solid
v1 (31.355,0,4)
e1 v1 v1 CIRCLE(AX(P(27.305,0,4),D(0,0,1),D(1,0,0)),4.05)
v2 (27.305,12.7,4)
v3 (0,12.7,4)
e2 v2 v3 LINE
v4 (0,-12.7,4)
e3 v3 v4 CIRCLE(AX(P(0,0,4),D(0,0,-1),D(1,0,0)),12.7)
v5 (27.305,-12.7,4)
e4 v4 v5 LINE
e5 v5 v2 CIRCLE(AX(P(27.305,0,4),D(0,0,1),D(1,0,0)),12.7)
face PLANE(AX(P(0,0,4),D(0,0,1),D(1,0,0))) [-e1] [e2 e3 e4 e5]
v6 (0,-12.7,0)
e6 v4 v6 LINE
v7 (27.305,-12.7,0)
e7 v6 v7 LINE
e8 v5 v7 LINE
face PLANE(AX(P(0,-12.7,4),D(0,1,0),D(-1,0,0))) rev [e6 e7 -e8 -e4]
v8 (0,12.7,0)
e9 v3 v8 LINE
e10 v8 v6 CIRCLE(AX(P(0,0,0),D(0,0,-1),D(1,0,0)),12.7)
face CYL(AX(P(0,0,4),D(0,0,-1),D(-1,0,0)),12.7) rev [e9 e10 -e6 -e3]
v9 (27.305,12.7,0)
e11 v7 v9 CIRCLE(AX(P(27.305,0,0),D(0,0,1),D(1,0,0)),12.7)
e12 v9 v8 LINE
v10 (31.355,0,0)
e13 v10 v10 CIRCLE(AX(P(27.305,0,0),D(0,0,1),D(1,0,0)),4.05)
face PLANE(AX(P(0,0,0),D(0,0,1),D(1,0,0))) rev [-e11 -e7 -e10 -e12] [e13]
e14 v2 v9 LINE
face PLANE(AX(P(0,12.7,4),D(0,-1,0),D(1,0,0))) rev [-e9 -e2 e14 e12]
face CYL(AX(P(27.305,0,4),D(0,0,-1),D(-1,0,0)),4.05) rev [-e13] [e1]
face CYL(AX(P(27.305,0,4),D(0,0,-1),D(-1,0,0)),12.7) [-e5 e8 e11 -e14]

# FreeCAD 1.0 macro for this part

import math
import FreeCAD as App
import Part
import Sketcher

V = App.Vector
Q = App.Units.Quantity

doc = App.newDocument("Part")
params = doc.addObject("Spreadsheet::Sheet", "Params")
for row, (alias, value) in enumerate([
    ("sketch1_diameter", "8.1 mm"),
    ("sketch1_radius", "12.7 mm"),
    ("pad1_length", "4 mm"),
], start=1):
    params.set(f"A{row}", alias)
    params.set(f"B{row}", "=" + value)
    params.setAlias(f"B{row}", alias)

body = doc.addObject("PartDesign::Body", "Body")

# Sketch on XY plane
sketch1 = body.newObject("Sketcher::SketchObject", "Sketch")
sketch1.AttachmentSupport = (doc.getObject("XY_Plane"), [""])
sketch1.MapMode = "FlatFace"
sketch1.addGeometry([
    Part.LineSegment(V(27.305, 12.7, 0), V(0, 12.7, 0)),  # 0
    Part.ArcOfCircle(Part.Circle(V(0, 0, 0), V(0, 0, 1), 12.7), math.radians(-90), math.radians(90)),  # 1
    Part.LineSegment(V(0, -12.7, 0), V(27.305, -12.7, 0)),  # 2
    Part.ArcOfCircle(Part.Circle(V(27.305, 0, 0), V(0, 0, 1), 12.7), math.radians(-90), math.radians(90)),  # 3
    Part.Circle(V(27.305, 0, 0), V(0, 0, 1), 4.05),  # 4
], False)
sketch1.addConstraint([
    Sketcher.Constraint("Tangent", 0, 2, 1, 2),
    Sketcher.Constraint("Tangent", 1, 1, 2, 1),
    Sketcher.Constraint("Tangent", 2, 2, 3, 1),
    Sketcher.Constraint("Tangent", 3, 2, 0, 1),
    Sketcher.Constraint("Horizontal", 0),
    Sketcher.Constraint("Horizontal", 2),
    Sketcher.Constraint("Coincident", 1, 3, -1, 1),
    Sketcher.Constraint("Coincident", 4, 3, 3, 3),
    Sketcher.Constraint("Diameter", 4, Q("8.1 mm")),
    Sketcher.Constraint("Radius", 1, Q("12.7 mm")),
    Sketcher.Constraint("DistanceX", 0, 2, 0, 1, Q("27.305 mm")),
])
sketch1.setExpression("Constraints[8]", "Params.sketch1_diameter")
sketch1.setExpression("Constraints[9]", "Params.sketch1_radius")
pad1 = body.newObject("PartDesign::Pad", "Pad")
pad1.Profile = sketch1
pad1.setExpression("Length", "Params.pad1_length")

doc.recompute()
